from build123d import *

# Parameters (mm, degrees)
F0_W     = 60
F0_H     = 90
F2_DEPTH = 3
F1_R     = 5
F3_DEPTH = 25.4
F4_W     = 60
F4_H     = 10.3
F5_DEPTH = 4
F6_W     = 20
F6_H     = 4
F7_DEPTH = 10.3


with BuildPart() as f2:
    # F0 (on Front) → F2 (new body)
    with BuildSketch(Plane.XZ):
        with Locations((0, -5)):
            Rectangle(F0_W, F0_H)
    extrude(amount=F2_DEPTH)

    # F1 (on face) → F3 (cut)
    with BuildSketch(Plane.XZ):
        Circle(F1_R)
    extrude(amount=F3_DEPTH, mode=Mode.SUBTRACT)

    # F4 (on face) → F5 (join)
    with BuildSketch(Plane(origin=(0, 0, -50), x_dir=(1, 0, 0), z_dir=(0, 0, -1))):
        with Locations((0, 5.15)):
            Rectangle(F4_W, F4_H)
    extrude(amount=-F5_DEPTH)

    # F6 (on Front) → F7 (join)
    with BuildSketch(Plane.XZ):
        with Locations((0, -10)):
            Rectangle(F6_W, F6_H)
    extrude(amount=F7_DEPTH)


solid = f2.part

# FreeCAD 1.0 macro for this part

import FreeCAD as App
import Part
import Sketcher
from FreeCAD import Vector

doc = App.newDocument("Part")
body = doc.addObject("PartDesign::Body", "Body")

# Sketch on XZ plane
sketch1 = body.newObject("Sketcher::SketchObject", "Sketch")
sketch1.AttachmentSupport = (doc.getObject("XZ_Plane"), [""])
sketch1.MapMode = "FlatFace"
sketch1.addGeometry([
    Part.LineSegment(Vector(-30, 40, 0), Vector(-30, -50, 0)),
    Part.LineSegment(Vector(-30, -50, 0), Vector(30, -50, 0)),
    Part.LineSegment(Vector(30, -50, 0), Vector(30, 40, 0)),
    Part.LineSegment(Vector(30, 40, 0), Vector(-30, 40, 0)),
], False)
sketch1.addConstraint([
    Sketcher.Constraint("Coincident", 0, 2, 1, 1),
    Sketcher.Constraint("Coincident", 1, 2, 2, 1),
    Sketcher.Constraint("Coincident", 2, 2, 3, 1),
    Sketcher.Constraint("Coincident", 3, 2, 0, 1),
    Sketcher.Constraint("Vertical", 0),
    Sketcher.Constraint("Horizontal", 1),
    Sketcher.Constraint("Vertical", 2),
    Sketcher.Constraint("Horizontal", 3),
    Sketcher.Constraint("DistanceX", 1, 1, 1, 2, 60.0),
    Sketcher.Constraint("DistanceY", 0, 2, 0, 1, 90.0),
    Sketcher.Constraint("DistanceX", 0, 2, -1, 1, 30.0),
    Sketcher.Constraint("DistanceY", 0, 2, -1, 1, 50.0),
])
pad1 = body.newObject("PartDesign::Pad", "Pad")
pad1.Profile = sketch1
pad1.Length = 3

# Sketch on XZ plane
sketch2 = body.newObject("Sketcher::SketchObject", "Sketch001")
sketch2.AttachmentSupport = (doc.getObject("XZ_Plane"), [""])
sketch2.MapMode = "FlatFace"
sketch2.addGeometry(Part.Circle(Vector(0, 0, 0), Vector(0, 0, 1), 5), False)
sketch2.addConstraint([
    Sketcher.Constraint("Coincident", 0, 3, -1, 1),
    Sketcher.Constraint("Diameter", 0, 10.0),
])
pocket1 = body.newObject("PartDesign::Pocket", "Pocket")
pocket1.Profile = sketch2
pocket1.Length = 25.4
pocket1.Reversed = True

# Sketch on XY plane
sketch3 = body.newObject("Sketcher::SketchObject", "Sketch002")
sketch3.AttachmentSupport = (doc.getObject("XY_Plane"), [""])
sketch3.MapMode = "FlatFace"
sketch3.AttachmentOffset = App.Placement(Vector(0, 0, -50), App.Rotation())
sketch3.addGeometry([
    Part.LineSegment(Vector(-30, -10, 0), Vector(-30, 0, 0)),
    Part.LineSegment(Vector(-30, 0, 0), Vector(30, 0, 0)),
    Part.LineSegment(Vector(30, 0, 0), Vector(30, -10, 0)),
    Part.LineSegment(Vector(30, -10, 0), Vector(-30, -10, 0)),
], False)
sketch3.addConstraint([
    Sketcher.Constraint("Coincident", 0, 2, 1, 1),
    Sketcher.Constraint("Coincident", 1, 2, 2, 1),
    Sketcher.Constraint("Coincident", 2, 2, 3, 1),
    Sketcher.Constraint("Coincident", 3, 2, 0, 1),
    Sketcher.Constraint("Vertical", 0),
    Sketcher.Constraint("Horizontal", 1),
    Sketcher.Constraint("Vertical", 2),
    Sketcher.Constraint("Horizontal", 3),
    Sketcher.Constraint("Symmetric", 0, 2, 1, 2, -1, 1),
    Sketcher.Constraint("DistanceX", 1, 1, 1, 2, 60.0),
    Sketcher.Constraint("DistanceY", 0, 1, 0, 2, 10.3),
])
pad2 = body.newObject("PartDesign::Pad", "Pad001")
pad2.Profile = sketch3
pad2.Length = 4

# Sketch on XZ plane
sketch4 = body.newObject("Sketcher::SketchObject", "Sketch003")
sketch4.AttachmentSupport = (doc.getObject("XZ_Plane"), [""])
sketch4.MapMode = "FlatFace"
sketch4.addGeometry([
    Part.LineSegment(Vector(-10, -8, 0), Vector(-10, -12, 0)),
    Part.LineSegment(Vector(-10, -12, 0), Vector(10, -12, 0)),
    Part.LineSegment(Vector(10, -12, 0), Vector(10, -8, 0)),
    Part.LineSegment(Vector(10, -8, 0), Vector(-10, -8, 0)),
], False)
sketch4.addConstraint([
    Sketcher.Constraint("Coincident", 0, 2, 1, 1),
    Sketcher.Constraint("Coincident", 1, 2, 2, 1),
    Sketcher.Constraint("Coincident", 2, 2, 3, 1),
    Sketcher.Constraint("Coincident", 3, 2, 0, 1),
    Sketcher.Constraint("Vertical", 0),
    Sketcher.Constraint("Horizontal", 1),
    Sketcher.Constraint("Vertical", 2),
    Sketcher.Constraint("Horizontal", 3),
    Sketcher.Constraint("DistanceX", 1, 1, 1, 2, 20.0),
    Sketcher.Constraint("DistanceY", 0, 2, 0, 1, 4.0),
    Sketcher.Constraint("DistanceX", 0, 2, -1, 1, 10.0),
    Sketcher.Constraint("DistanceY", 0, 2, -1, 1, 12.0),
])
pad3 = body.newObject("PartDesign::Pad", "Pad002")
pad3.Profile = sketch4
pad3.Length = 10.3

doc.recompute()
